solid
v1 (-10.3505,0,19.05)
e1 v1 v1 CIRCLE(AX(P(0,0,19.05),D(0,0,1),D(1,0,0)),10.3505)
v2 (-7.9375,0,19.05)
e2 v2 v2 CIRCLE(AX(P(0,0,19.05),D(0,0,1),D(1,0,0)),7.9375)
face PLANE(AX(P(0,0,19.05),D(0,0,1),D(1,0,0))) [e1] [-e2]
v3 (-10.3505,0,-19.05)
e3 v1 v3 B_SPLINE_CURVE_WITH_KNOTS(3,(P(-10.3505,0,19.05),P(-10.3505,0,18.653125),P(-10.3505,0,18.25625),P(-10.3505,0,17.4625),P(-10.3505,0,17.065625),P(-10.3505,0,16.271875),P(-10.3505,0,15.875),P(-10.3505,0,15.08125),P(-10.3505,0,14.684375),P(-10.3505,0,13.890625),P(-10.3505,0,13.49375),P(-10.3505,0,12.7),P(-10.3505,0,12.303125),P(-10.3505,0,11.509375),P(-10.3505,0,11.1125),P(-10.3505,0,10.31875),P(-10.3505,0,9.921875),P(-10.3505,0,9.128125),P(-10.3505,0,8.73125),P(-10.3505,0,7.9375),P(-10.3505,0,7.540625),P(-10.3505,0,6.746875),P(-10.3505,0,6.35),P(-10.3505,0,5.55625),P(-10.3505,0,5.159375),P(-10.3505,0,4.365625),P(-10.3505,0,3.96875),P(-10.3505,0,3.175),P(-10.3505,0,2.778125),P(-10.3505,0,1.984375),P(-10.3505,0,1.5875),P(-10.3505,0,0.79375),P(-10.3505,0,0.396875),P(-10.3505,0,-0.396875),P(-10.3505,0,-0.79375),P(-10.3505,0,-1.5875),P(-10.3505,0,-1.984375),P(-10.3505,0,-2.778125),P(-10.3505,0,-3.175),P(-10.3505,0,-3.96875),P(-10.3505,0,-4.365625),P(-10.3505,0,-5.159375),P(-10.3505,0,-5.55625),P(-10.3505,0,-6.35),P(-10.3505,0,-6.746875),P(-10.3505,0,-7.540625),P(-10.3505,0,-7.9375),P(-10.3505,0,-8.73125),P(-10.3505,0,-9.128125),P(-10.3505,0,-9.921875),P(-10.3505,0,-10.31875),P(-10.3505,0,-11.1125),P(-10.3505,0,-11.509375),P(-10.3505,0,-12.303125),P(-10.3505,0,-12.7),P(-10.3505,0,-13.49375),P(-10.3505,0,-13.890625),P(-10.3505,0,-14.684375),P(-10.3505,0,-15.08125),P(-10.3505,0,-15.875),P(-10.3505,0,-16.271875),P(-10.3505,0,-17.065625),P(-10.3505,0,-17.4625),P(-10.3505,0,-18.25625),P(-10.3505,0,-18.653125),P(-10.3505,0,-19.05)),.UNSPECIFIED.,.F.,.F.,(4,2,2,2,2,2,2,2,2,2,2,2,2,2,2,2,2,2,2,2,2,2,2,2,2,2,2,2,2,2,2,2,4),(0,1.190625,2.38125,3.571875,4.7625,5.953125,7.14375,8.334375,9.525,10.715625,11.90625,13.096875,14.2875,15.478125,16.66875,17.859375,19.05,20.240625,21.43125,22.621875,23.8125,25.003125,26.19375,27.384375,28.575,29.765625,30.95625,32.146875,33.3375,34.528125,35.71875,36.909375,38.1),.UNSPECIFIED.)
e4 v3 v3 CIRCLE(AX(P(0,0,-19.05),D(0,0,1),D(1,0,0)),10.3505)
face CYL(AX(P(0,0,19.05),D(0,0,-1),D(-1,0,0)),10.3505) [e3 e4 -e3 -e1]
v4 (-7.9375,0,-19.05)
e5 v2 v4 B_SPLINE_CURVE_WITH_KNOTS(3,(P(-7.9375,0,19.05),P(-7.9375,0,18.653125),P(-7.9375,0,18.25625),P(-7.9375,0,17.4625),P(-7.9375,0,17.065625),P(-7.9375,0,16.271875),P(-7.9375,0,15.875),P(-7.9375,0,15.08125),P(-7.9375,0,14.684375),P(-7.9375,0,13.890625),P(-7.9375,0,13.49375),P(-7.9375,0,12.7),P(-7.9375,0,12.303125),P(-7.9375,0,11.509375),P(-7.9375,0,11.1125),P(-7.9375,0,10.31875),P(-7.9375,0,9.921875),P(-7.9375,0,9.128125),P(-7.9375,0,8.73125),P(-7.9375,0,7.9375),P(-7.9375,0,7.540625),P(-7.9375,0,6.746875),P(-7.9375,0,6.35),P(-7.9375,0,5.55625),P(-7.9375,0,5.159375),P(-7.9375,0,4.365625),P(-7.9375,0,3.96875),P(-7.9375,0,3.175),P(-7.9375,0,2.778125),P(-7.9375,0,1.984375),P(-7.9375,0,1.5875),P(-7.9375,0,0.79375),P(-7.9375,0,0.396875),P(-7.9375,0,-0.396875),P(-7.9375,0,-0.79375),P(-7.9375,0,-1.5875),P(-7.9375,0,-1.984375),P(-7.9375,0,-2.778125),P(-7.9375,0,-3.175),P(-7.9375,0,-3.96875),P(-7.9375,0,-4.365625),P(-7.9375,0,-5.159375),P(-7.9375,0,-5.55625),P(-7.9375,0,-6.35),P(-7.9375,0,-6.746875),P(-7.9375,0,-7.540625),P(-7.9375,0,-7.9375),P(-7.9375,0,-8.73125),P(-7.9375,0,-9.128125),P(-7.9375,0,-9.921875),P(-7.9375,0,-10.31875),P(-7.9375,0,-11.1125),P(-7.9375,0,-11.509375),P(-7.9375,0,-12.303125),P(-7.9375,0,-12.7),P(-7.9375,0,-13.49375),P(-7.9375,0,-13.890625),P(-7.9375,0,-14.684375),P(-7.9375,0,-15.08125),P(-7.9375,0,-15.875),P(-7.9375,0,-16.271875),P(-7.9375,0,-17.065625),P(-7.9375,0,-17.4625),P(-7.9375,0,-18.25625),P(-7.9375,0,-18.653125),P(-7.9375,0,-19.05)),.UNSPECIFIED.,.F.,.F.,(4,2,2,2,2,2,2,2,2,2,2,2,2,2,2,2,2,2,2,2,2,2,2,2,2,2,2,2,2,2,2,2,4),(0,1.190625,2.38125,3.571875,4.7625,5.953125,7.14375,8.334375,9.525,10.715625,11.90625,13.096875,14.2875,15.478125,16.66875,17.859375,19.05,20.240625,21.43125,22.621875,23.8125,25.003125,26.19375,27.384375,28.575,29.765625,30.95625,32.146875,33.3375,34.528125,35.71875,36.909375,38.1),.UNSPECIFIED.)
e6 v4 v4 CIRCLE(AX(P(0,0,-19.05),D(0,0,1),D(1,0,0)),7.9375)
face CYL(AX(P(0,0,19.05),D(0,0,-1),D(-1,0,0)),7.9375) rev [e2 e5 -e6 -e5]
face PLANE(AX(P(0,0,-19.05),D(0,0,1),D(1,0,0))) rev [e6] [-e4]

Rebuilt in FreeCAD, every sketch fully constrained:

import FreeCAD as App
import Part
import Sketcher
Q = App.Units.Quantity

doc = App.newDocument("Part")
body = doc.addObject("PartDesign::Body", "Body")

sketch1 = body.newObject("Sketcher::SketchObject", "Sketch")
sketch1.AttachmentSupport = (doc.getObject("XY_Plane"), [""])
sketch1.MapMode = "FlatFace"
sketch1.addGeometry([
    Part.Circle(App.Vector(0, 0, 0), App.Vector(0, 0, 1), 10),
    Part.Circle(App.Vector(0, 0, 0), App.Vector(0, 0, 1), 8),
], False)
sketch1.addConstraint([
    Sketcher.Constraint("Coincident", 0, 3, -1, 1),
    Sketcher.Constraint("Coincident", 1, 3, -1, 1),
    Sketcher.Constraint("Diameter", 0, Q("0.815 in")),
    Sketcher.Constraint("Diameter", 1, Q("0.625 in")),
])
pad1 = body.newObject("PartDesign::Pad", "Pad")
pad1.Profile = sketch1
pad1.Length = Q("1.5 in")
pad1.Midplane = True

doc.recompute()
